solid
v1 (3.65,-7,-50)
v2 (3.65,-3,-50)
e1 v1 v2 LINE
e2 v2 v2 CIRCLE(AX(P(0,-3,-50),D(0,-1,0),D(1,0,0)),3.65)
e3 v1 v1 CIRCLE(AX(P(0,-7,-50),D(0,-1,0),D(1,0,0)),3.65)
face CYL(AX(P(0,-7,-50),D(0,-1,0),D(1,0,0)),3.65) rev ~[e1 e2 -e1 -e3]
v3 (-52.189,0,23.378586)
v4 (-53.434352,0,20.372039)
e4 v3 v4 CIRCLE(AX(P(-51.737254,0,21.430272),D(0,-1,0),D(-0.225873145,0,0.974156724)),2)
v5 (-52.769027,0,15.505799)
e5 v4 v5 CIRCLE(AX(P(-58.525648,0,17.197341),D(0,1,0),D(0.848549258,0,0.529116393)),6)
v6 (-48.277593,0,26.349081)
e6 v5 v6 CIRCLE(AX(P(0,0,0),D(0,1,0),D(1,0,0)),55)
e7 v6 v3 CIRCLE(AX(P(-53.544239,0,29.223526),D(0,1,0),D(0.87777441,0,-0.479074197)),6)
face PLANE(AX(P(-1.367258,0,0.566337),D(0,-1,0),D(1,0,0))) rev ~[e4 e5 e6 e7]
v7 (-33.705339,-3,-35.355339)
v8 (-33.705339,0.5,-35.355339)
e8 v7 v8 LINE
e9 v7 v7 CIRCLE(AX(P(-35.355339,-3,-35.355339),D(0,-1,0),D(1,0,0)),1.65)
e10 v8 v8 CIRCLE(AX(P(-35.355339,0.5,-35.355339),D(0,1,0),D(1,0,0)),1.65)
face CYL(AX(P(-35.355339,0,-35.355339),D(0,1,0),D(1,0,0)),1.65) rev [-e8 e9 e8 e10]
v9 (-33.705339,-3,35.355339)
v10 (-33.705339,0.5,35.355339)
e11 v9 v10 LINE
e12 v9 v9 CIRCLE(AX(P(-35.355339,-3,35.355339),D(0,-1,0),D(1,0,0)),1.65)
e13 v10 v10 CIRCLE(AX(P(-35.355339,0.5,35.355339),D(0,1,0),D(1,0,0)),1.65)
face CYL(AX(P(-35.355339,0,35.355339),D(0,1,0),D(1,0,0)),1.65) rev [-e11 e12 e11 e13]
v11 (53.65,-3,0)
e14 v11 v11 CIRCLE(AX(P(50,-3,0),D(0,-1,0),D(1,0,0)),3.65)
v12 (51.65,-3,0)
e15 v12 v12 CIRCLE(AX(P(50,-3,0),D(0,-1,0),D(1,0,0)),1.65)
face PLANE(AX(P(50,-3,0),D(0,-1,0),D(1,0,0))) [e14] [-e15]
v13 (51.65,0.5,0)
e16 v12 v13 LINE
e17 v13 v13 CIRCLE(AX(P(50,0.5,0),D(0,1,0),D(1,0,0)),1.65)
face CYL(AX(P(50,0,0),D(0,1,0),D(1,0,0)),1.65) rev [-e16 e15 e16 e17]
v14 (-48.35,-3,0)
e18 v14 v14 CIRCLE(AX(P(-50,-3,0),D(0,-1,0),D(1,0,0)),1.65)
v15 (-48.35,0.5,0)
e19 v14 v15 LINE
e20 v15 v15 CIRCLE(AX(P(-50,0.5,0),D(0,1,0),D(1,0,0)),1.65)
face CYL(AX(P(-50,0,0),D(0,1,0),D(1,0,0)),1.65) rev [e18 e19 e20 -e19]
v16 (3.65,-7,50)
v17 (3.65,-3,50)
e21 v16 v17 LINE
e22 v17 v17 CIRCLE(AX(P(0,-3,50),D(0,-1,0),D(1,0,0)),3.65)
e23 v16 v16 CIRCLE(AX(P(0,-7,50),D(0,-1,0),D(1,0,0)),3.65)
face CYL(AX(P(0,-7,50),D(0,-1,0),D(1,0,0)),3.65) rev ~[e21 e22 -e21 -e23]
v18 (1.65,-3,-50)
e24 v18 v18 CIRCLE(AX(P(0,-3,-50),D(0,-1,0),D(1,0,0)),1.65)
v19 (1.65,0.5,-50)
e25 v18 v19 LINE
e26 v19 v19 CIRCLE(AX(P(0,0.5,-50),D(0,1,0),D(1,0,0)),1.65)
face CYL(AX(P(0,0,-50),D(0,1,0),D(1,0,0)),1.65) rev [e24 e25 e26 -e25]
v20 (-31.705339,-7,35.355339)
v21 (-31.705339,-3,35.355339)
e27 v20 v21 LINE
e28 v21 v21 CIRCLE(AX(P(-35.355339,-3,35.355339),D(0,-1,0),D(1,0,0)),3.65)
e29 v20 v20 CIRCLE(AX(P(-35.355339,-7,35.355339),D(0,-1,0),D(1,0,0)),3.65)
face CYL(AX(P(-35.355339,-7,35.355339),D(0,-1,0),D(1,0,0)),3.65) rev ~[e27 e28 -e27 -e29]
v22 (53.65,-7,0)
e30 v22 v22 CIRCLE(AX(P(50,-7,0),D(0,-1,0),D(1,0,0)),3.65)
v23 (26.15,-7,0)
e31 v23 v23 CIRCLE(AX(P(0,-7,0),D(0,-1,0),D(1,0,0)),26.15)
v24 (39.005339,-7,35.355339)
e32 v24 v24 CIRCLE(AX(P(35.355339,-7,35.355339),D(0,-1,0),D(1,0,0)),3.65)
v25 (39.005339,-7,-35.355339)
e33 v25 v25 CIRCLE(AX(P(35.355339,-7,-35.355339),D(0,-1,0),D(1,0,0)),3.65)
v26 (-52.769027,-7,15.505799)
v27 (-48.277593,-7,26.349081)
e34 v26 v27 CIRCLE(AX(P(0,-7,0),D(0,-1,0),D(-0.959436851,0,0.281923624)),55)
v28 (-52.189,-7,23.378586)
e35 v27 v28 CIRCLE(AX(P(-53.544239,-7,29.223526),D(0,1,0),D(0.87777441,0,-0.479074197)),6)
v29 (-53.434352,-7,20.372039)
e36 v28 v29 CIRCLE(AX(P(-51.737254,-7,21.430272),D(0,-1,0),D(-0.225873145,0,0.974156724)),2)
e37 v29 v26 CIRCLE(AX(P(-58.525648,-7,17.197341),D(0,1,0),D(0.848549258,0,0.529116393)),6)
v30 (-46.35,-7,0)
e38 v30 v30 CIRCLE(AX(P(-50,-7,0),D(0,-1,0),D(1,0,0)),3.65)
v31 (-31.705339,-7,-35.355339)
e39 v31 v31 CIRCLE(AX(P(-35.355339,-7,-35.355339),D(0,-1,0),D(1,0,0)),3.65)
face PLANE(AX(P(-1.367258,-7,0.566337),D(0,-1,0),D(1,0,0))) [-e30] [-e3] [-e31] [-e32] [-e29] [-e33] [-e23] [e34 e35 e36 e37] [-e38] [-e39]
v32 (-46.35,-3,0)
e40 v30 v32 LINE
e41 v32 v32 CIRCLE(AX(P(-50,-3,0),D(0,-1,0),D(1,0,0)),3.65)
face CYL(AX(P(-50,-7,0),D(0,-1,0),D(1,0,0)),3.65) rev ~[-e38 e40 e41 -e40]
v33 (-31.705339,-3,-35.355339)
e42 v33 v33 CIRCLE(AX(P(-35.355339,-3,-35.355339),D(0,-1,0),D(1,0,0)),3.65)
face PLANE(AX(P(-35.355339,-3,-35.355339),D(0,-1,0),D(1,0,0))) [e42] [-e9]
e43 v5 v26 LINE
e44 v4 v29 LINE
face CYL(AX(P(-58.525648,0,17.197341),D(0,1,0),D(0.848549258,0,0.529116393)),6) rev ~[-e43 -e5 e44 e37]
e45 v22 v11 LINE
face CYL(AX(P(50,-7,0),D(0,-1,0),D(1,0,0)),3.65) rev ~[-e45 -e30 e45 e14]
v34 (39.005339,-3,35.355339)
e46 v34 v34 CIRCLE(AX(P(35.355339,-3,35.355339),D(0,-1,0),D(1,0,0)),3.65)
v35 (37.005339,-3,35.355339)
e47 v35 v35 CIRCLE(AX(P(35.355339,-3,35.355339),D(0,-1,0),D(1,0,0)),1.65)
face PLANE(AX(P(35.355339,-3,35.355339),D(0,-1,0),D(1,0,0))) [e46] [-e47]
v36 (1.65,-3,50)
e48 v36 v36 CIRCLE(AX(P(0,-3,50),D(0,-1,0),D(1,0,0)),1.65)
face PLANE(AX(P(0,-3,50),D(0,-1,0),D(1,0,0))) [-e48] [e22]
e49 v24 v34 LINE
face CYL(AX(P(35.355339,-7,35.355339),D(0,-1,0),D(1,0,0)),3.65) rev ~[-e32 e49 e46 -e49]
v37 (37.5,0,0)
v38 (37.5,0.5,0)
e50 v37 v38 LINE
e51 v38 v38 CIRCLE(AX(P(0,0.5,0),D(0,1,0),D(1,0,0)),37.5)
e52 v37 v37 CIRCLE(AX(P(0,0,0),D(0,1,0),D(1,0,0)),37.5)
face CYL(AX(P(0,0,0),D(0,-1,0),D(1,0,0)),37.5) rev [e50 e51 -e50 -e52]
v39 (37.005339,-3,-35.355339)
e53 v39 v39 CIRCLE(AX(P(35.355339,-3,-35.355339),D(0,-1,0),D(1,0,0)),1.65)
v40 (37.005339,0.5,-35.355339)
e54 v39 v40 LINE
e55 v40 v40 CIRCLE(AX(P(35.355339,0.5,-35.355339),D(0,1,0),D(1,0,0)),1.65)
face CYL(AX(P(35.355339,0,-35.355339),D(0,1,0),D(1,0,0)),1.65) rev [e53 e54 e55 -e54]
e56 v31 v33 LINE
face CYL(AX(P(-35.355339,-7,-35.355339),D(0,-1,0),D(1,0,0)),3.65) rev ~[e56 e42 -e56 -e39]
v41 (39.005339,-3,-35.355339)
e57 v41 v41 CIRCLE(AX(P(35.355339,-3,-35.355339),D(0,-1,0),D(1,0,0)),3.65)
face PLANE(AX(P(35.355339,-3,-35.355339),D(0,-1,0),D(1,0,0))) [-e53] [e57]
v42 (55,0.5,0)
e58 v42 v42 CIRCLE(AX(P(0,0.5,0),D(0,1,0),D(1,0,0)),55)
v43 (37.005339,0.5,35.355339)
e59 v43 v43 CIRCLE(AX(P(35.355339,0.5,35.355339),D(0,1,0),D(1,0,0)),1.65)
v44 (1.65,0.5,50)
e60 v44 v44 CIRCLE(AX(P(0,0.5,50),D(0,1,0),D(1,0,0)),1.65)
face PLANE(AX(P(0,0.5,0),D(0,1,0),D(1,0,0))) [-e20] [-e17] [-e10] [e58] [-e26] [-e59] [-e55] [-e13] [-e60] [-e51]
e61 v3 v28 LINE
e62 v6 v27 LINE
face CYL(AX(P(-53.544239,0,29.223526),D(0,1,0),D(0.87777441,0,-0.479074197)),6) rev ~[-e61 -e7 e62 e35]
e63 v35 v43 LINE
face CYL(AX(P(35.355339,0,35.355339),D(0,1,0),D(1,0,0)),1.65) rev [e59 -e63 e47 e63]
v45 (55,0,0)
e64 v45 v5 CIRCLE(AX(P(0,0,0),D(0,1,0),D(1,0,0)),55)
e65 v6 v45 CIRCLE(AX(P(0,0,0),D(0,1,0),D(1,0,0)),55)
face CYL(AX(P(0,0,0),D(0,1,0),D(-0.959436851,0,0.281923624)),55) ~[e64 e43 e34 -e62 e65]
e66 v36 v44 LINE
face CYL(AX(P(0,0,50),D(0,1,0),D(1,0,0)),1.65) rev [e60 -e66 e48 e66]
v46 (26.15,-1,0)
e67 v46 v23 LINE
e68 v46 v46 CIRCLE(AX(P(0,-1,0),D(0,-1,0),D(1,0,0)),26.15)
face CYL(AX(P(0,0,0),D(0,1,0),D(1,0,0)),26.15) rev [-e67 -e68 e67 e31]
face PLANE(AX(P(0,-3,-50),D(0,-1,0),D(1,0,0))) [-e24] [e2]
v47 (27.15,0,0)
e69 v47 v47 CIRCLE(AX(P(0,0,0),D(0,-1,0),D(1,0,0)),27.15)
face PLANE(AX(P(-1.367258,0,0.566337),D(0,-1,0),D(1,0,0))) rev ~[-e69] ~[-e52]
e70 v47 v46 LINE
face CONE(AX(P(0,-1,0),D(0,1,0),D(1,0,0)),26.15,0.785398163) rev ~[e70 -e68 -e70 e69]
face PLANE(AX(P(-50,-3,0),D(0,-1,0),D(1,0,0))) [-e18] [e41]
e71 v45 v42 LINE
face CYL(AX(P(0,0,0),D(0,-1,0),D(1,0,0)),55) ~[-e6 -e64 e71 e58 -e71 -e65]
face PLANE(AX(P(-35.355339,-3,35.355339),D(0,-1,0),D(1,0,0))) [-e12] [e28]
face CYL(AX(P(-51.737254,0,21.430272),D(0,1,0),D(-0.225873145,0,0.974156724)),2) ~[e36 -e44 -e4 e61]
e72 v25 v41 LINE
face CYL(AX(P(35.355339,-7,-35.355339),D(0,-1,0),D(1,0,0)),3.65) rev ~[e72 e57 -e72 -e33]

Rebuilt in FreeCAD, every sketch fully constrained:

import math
import FreeCAD as App
import Part
import Sketcher

V = App.Vector
Q = App.Units.Quantity


def edges_at(feature, points):
    """Names of the edges that pass closest to the given points."""
    edges = feature.Shape.Edges
    near = lambda p: min(range(len(edges)), key=lambda i: edges[i].distToShape(Part.Vertex(*p))[0])
    return sorted({f"Edge{near(p) + 1}" for p in points})

doc = App.newDocument("Part")
body = doc.addObject("PartDesign::Body", "Body")

# Sketch on XZ plane
sketch1 = body.newObject("Sketcher::SketchObject", "Sketch")
sketch1.AttachmentSupport = (doc.getObject("XZ_Plane"), [""])
sketch1.MapMode = "FlatFace"
sketch1.addGeometry(Part.Circle(V(0, 0, 0), V(0, 0, 1), 55), False)
sketch1.addGeometry(Part.Circle(V(-35.4, 35.4, 0), V(0, 0, 1), 1.6), False)
sketch1.addGeometry(Part.Circle(V(0, 50, 0), V(0, 0, 1), 1.6), False)
sketch1.addGeometry(Part.Circle(V(-50, 0, 0), V(0, 0, 1), 1.6), False)
sketch1.addGeometry(Part.Circle(V(0, 0, 0), V(0, 0, 1), 37.5), False)
sketch1.addGeometry(Part.Circle(V(35.4, 35.4, 0), V(0, 0, 1), 1.6), False)
sketch1.addGeometry(Part.Circle(V(50, 0, 0), V(0, 0, 1), 1.6), False)
sketch1.addGeometry(Part.Circle(V(-35.4, -35.4, 0), V(0, 0, 1), 1.6), False)
sketch1.addGeometry(Part.Circle(V(0, -50, 0), V(0, 0, 1), 1.6), False)
sketch1.addGeometry(Part.Circle(V(35.4, -35.4, 0), V(0, 0, 1), 1.6), False)
sketch1.addConstraint(Sketcher.Constraint("Coincident", 0, 3, -1, 1))
sketch1.addConstraint(Sketcher.Constraint("Coincident", 4, 3, -1, 1))
sketch1.addConstraint(Sketcher.Constraint("Equal", 1, 2))
sketch1.addConstraint(Sketcher.Constraint("Equal", 2, 3))
sketch1.addConstraint(Sketcher.Constraint("Equal", 3, 5))
sketch1.addConstraint(Sketcher.Constraint("Equal", 5, 6))
sketch1.addConstraint(Sketcher.Constraint("Equal", 6, 7))
sketch1.addConstraint(Sketcher.Constraint("Equal", 7, 8))
sketch1.addConstraint(Sketcher.Constraint("Equal", 8, 9))
sketch1.addConstraint(Sketcher.Constraint("Symmetric", 3, 3, 6, 3, -1, 1))
sketch1.addConstraint(Sketcher.Constraint("Symmetric", 5, 3, 7, 3, -1, 1))
sketch1.addConstraint(Sketcher.Constraint("Symmetric", 2, 3, 8, 3, -1, 1))
sketch1.addConstraint(Sketcher.Constraint("Symmetric", 1, 3, 9, 3, -1, 1))
sketch1.addConstraint(Sketcher.Constraint("Symmetric", 1, 3, 5, 3, -2))
sketch1.addConstraint(Sketcher.Constraint("PointOnObject", 2, 3, -2))
sketch1.addConstraint(Sketcher.Constraint("PointOnObject", 3, 3, -1))
sketch1.addConstraint(Sketcher.Constraint("Diameter", 0, Q("110 mm")))
sketch1.addConstraint(Sketcher.Constraint("Diameter", 4, Q("75 mm")))
sketch1.addConstraint(Sketcher.Constraint("Diameter", 1, Q("3.3 mm")))
sketch1.addConstraint(Sketcher.Constraint("DistanceY", -1, 1, 2, 3, Q("50 mm")))
sketch1.addConstraint(Sketcher.Constraint("DistanceX", 3, 3, -1, 1, Q("50 mm")))
sketch1.addConstraint(Sketcher.Constraint("DistanceX", 1, 3, -1, 1, Q("35.355339 mm")))
sketch1.addConstraint(Sketcher.Constraint("DistanceY", -1, 1, 1, 3, Q("35.355339 mm")))
pad1 = body.newObject("PartDesign::Pad", "Pad")
pad1.Profile = sketch1
pad1.Length = 0.5
pad1.Reversed = True

# Sketch on XZ plane
sketch2 = body.newObject("Sketcher::SketchObject", "Sketch001")
sketch2.AttachmentSupport = (doc.getObject("XZ_Plane"), [""])
sketch2.MapMode = "FlatFace"
sketch2.addGeometry(Part.ArcOfCircle(Part.Circle(V(0, 0, 0), V(0, 0, 1), 55), math.radians(164), math.radians(511)), False)
sketch2.addGeometry(Part.ArcOfCircle(Part.Circle(V(-53.5, 29.2, 0), V(0, 0, 1), 6), math.radians(-77), math.radians(-29)), False)
sketch2.addGeometry(Part.ArcOfCircle(Part.Circle(V(-51.7, 21.4, 0), V(0, 0, 1), 2), math.radians(103), math.radians(212)), False)
sketch2.addGeometry(Part.ArcOfCircle(Part.Circle(V(-58.5, 17.2, 0), V(0, 0, 1), 6), math.radians(-16), math.radians(32)), False)
sketch2.addGeometry(Part.Circle(V(-35.4, -35.4, 0), V(0, 0, 1), 1.6), False)
sketch2.addGeometry(Part.Circle(V(0, -50, 0), V(0, 0, 1), 1.6), False)
sketch2.addGeometry(Part.Circle(V(-50, 0, 0), V(0, 0, 1), 1.6), False)
sketch2.addGeometry(Part.Circle(V(0, 0, 0), V(0, 0, 1), 26.1), False)
sketch2.addGeometry(Part.Circle(V(35.4, -35.4, 0), V(0, 0, 1), 1.6), False)
sketch2.addGeometry(Part.Circle(V(50, 0, 0), V(0, 0, 1), 1.6), False)
sketch2.addGeometry(Part.Circle(V(-35.4, 35.4, 0), V(0, 0, 1), 1.6), False)
sketch2.addGeometry(Part.Circle(V(0, 50, 0), V(0, 0, 1), 1.6), False)
sketch2.addGeometry(Part.Circle(V(35.4, 35.4, 0), V(0, 0, 1), 1.6), False)
sketch2.addConstraint(Sketcher.Constraint("Tangent", 0, 2, 1, 2))
sketch2.addConstraint(Sketcher.Constraint("Tangent", 1, 1, 2, 1))
sketch2.addConstraint(Sketcher.Constraint("Tangent", 2, 2, 3, 2))
sketch2.addConstraint(Sketcher.Constraint("Tangent", 3, 1, 0, 1))
sketch2.addConstraint(Sketcher.Constraint("Coincident", 0, 3, -1, 1))
sketch2.addConstraint(Sketcher.Constraint("Coincident", 7, 3, -1, 1))
sketch2.addConstraint(Sketcher.Constraint("Equal", 1, 3))
sketch2.addConstraint(Sketcher.Constraint("Equal", 4, 5))
sketch2.addConstraint(Sketcher.Constraint("Equal", 5, 6))
sketch2.addConstraint(Sketcher.Constraint("Equal", 6, 8))
sketch2.addConstraint(Sketcher.Constraint("Equal", 8, 9))
sketch2.addConstraint(Sketcher.Constraint("Equal", 9, 10))
sketch2.addConstraint(Sketcher.Constraint("Equal", 10, 11))
sketch2.addConstraint(Sketcher.Constraint("Equal", 11, 12))
sketch2.addConstraint(Sketcher.Constraint("Symmetric", 6, 3, 9, 3, -1, 1))
sketch2.addConstraint(Sketcher.Constraint("Symmetric", 8, 3, 10, 3, -1, 1))
sketch2.addConstraint(Sketcher.Constraint("Symmetric", 5, 3, 11, 3, -1, 1))
sketch2.addConstraint(Sketcher.Constraint("Symmetric", 4, 3, 12, 3, -1, 1))
sketch2.addConstraint(Sketcher.Constraint("Symmetric", 4, 3, 8, 3, -2))
sketch2.addConstraint(Sketcher.Constraint("PointOnObject", 5, 3, -2))
sketch2.addConstraint(Sketcher.Constraint("PointOnObject", 6, 3, -1))
sketch2.addConstraint(Sketcher.Constraint("Radius", 0, Q("55 mm")))
sketch2.addConstraint(Sketcher.Constraint("Radius", 1, Q("6 mm")))
sketch2.addConstraint(Sketcher.Constraint("Radius", 2, Q("2 mm")))
sketch2.addConstraint(Sketcher.Constraint("Diameter", 4, Q("3.3 mm")))
sketch2.addConstraint(Sketcher.Constraint("Diameter", 7, Q("52.3 mm")))
sketch2.addConstraint(Sketcher.Constraint("DistanceY", 5, 3, -1, 1, Q("50 mm")))
sketch2.addConstraint(Sketcher.Constraint("DistanceX", 6, 3, -1, 1, Q("50 mm")))
sketch2.addConstraint(Sketcher.Constraint("DistanceX", 1, 1, -1, 1, Q("52.189 mm")))
sketch2.addConstraint(Sketcher.Constraint("DistanceY", -1, 1, 3, 1, Q("15.505799 mm")))
sketch2.addConstraint(Sketcher.Constraint("DistanceX", 1, 3, 4, 3, Q("18.1889 mm")))
sketch2.addConstraint(Sketcher.Constraint("DistanceY", 4, 3, -1, 1, Q("35.355339 mm")))
pad2 = body.newObject("PartDesign::Pad", "Pad001")
pad2.Profile = sketch2
pad2.Length = 7
doc.recompute()

chamfer = body.newObject("PartDesign::Chamfer", "Chamfer")
chamfer.Base = (pad2, edges_at(pad2, [(-26.15, 0, 0)]))
chamfer.Size = 1

# Sketch on XZ plane
sketch3 = body.newObject("Sketcher::SketchObject", "Sketch002")
sketch3.AttachmentSupport = (doc.getObject("XZ_Plane"), [""])
sketch3.MapMode = "FlatFace"
sketch3.AttachmentOffset = App.Placement(V(0, 0, 7), App.Rotation())
sketch3.addGeometry(Part.Circle(V(-50, 0, 0), V(0, 0, 1), 3.6), False)
sketch3.addGeometry(Part.Circle(V(-50, 0, 0), V(0, 0, 1), 1.6), False)
sketch3.addGeometry(Part.Circle(V(-35.4, -35.4, 0), V(0, 0, 1), 3.6), False)
sketch3.addGeometry(Part.Circle(V(-35.4, -35.4, 0), V(0, 0, 1), 1.6), False)
sketch3.addGeometry(Part.Circle(V(0, -50, 0), V(0, 0, 1), 3.6), False)
sketch3.addGeometry(Part.Circle(V(0, -50, 0), V(0, 0, 1), 1.6), False)
sketch3.addGeometry(Part.Circle(V(35.4, -35.4, 0), V(0, 0, 1), 3.6), False)
sketch3.addGeometry(Part.Circle(V(35.4, -35.4, 0), V(0, 0, 1), 1.6), False)
sketch3.addGeometry(Part.Circle(V(50, 0, 0), V(0, 0, 1), 3.6), False)
sketch3.addGeometry(Part.Circle(V(50, 0, 0), V(0, 0, 1), 1.6), False)
sketch3.addGeometry(Part.Circle(V(35.4, 35.4, 0), V(0, 0, 1), 3.6), False)
sketch3.addGeometry(Part.Circle(V(35.4, 35.4, 0), V(0, 0, 1), 1.6), False)
sketch3.addGeometry(Part.Circle(V(0, 50, 0), V(0, 0, 1), 3.6), False)
sketch3.addGeometry(Part.Circle(V(0, 50, 0), V(0, 0, 1), 1.6), False)
sketch3.addGeometry(Part.Circle(V(-35.4, 35.4, 0), V(0, 0, 1), 3.6), False)
sketch3.addGeometry(Part.Circle(V(-35.4, 35.4, 0), V(0, 0, 1), 1.6), False)
sketch3.addConstraint(Sketcher.Constraint("Coincident", 1, 3, 0, 3))
sketch3.addConstraint(Sketcher.Constraint("Coincident", 3, 3, 2, 3))
sketch3.addConstraint(Sketcher.Constraint("Coincident", 5, 3, 4, 3))
sketch3.addConstraint(Sketcher.Constraint("Coincident", 7, 3, 6, 3))
sketch3.addConstraint(Sketcher.Constraint("Coincident", 9, 3, 8, 3))
sketch3.addConstraint(Sketcher.Constraint("Coincident", 11, 3, 10, 3))
sketch3.addConstraint(Sketcher.Constraint("Coincident", 13, 3, 12, 3))
sketch3.addConstraint(Sketcher.Constraint("Coincident", 15, 3, 14, 3))
sketch3.addConstraint(Sketcher.Constraint("Equal", 0, 2))
sketch3.addConstraint(Sketcher.Constraint("Equal", 1, 3))
sketch3.addConstraint(Sketcher.Constraint("Equal", 2, 4))
sketch3.addConstraint(Sketcher.Constraint("Equal", 3, 5))
sketch3.addConstraint(Sketcher.Constraint("Equal", 4, 6))
sketch3.addConstraint(Sketcher.Constraint("Equal", 5, 7))
sketch3.addConstraint(Sketcher.Constraint("Equal", 6, 8))
sketch3.addConstraint(Sketcher.Constraint("Equal", 7, 9))
sketch3.addConstraint(Sketcher.Constraint("Equal", 8, 10))
sketch3.addConstraint(Sketcher.Constraint("Equal", 9, 11))
sketch3.addConstraint(Sketcher.Constraint("Equal", 10, 12))
sketch3.addConstraint(Sketcher.Constraint("Equal", 11, 13))
sketch3.addConstraint(Sketcher.Constraint("Equal", 12, 14))
sketch3.addConstraint(Sketcher.Constraint("Equal", 13, 15))
sketch3.addConstraint(Sketcher.Constraint("Symmetric", 0, 3, 8, 3, -1, 1))
sketch3.addConstraint(Sketcher.Constraint("Symmetric", 2, 3, 10, 3, -1, 1))
sketch3.addConstraint(Sketcher.Constraint("Symmetric", 4, 3, 12, 3, -1, 1))
sketch3.addConstraint(Sketcher.Constraint("Symmetric", 6, 3, 14, 3, -1, 1))
sketch3.addConstraint(Sketcher.Constraint("Symmetric", 2, 3, 6, 3, -2))
sketch3.addConstraint(Sketcher.Constraint("PointOnObject", 0, 3, -1))
sketch3.addConstraint(Sketcher.Constraint("PointOnObject", 4, 3, -2))
sketch3.addConstraint(Sketcher.Constraint("Diameter", 0, Q("7.3 mm")))
sketch3.addConstraint(Sketcher.Constraint("Diameter", 1, Q("3.3 mm")))
sketch3.addConstraint(Sketcher.Constraint("DistanceX", 0, 3, -1, 1, Q("50 mm")))
sketch3.addConstraint(Sketcher.Constraint("DistanceY", 4, 3, -1, 1, Q("50 mm")))
sketch3.addConstraint(Sketcher.Constraint("DistanceX", 2, 3, -1, 1, Q("35.355339 mm")))
sketch3.addConstraint(Sketcher.Constraint("DistanceY", 2, 3, -1, 1, Q("35.355339 mm")))
pocket1 = body.newObject("PartDesign::Pocket", "Pocket")
pocket1.Profile = sketch3
pocket1.Length = 4

doc.recompute()
